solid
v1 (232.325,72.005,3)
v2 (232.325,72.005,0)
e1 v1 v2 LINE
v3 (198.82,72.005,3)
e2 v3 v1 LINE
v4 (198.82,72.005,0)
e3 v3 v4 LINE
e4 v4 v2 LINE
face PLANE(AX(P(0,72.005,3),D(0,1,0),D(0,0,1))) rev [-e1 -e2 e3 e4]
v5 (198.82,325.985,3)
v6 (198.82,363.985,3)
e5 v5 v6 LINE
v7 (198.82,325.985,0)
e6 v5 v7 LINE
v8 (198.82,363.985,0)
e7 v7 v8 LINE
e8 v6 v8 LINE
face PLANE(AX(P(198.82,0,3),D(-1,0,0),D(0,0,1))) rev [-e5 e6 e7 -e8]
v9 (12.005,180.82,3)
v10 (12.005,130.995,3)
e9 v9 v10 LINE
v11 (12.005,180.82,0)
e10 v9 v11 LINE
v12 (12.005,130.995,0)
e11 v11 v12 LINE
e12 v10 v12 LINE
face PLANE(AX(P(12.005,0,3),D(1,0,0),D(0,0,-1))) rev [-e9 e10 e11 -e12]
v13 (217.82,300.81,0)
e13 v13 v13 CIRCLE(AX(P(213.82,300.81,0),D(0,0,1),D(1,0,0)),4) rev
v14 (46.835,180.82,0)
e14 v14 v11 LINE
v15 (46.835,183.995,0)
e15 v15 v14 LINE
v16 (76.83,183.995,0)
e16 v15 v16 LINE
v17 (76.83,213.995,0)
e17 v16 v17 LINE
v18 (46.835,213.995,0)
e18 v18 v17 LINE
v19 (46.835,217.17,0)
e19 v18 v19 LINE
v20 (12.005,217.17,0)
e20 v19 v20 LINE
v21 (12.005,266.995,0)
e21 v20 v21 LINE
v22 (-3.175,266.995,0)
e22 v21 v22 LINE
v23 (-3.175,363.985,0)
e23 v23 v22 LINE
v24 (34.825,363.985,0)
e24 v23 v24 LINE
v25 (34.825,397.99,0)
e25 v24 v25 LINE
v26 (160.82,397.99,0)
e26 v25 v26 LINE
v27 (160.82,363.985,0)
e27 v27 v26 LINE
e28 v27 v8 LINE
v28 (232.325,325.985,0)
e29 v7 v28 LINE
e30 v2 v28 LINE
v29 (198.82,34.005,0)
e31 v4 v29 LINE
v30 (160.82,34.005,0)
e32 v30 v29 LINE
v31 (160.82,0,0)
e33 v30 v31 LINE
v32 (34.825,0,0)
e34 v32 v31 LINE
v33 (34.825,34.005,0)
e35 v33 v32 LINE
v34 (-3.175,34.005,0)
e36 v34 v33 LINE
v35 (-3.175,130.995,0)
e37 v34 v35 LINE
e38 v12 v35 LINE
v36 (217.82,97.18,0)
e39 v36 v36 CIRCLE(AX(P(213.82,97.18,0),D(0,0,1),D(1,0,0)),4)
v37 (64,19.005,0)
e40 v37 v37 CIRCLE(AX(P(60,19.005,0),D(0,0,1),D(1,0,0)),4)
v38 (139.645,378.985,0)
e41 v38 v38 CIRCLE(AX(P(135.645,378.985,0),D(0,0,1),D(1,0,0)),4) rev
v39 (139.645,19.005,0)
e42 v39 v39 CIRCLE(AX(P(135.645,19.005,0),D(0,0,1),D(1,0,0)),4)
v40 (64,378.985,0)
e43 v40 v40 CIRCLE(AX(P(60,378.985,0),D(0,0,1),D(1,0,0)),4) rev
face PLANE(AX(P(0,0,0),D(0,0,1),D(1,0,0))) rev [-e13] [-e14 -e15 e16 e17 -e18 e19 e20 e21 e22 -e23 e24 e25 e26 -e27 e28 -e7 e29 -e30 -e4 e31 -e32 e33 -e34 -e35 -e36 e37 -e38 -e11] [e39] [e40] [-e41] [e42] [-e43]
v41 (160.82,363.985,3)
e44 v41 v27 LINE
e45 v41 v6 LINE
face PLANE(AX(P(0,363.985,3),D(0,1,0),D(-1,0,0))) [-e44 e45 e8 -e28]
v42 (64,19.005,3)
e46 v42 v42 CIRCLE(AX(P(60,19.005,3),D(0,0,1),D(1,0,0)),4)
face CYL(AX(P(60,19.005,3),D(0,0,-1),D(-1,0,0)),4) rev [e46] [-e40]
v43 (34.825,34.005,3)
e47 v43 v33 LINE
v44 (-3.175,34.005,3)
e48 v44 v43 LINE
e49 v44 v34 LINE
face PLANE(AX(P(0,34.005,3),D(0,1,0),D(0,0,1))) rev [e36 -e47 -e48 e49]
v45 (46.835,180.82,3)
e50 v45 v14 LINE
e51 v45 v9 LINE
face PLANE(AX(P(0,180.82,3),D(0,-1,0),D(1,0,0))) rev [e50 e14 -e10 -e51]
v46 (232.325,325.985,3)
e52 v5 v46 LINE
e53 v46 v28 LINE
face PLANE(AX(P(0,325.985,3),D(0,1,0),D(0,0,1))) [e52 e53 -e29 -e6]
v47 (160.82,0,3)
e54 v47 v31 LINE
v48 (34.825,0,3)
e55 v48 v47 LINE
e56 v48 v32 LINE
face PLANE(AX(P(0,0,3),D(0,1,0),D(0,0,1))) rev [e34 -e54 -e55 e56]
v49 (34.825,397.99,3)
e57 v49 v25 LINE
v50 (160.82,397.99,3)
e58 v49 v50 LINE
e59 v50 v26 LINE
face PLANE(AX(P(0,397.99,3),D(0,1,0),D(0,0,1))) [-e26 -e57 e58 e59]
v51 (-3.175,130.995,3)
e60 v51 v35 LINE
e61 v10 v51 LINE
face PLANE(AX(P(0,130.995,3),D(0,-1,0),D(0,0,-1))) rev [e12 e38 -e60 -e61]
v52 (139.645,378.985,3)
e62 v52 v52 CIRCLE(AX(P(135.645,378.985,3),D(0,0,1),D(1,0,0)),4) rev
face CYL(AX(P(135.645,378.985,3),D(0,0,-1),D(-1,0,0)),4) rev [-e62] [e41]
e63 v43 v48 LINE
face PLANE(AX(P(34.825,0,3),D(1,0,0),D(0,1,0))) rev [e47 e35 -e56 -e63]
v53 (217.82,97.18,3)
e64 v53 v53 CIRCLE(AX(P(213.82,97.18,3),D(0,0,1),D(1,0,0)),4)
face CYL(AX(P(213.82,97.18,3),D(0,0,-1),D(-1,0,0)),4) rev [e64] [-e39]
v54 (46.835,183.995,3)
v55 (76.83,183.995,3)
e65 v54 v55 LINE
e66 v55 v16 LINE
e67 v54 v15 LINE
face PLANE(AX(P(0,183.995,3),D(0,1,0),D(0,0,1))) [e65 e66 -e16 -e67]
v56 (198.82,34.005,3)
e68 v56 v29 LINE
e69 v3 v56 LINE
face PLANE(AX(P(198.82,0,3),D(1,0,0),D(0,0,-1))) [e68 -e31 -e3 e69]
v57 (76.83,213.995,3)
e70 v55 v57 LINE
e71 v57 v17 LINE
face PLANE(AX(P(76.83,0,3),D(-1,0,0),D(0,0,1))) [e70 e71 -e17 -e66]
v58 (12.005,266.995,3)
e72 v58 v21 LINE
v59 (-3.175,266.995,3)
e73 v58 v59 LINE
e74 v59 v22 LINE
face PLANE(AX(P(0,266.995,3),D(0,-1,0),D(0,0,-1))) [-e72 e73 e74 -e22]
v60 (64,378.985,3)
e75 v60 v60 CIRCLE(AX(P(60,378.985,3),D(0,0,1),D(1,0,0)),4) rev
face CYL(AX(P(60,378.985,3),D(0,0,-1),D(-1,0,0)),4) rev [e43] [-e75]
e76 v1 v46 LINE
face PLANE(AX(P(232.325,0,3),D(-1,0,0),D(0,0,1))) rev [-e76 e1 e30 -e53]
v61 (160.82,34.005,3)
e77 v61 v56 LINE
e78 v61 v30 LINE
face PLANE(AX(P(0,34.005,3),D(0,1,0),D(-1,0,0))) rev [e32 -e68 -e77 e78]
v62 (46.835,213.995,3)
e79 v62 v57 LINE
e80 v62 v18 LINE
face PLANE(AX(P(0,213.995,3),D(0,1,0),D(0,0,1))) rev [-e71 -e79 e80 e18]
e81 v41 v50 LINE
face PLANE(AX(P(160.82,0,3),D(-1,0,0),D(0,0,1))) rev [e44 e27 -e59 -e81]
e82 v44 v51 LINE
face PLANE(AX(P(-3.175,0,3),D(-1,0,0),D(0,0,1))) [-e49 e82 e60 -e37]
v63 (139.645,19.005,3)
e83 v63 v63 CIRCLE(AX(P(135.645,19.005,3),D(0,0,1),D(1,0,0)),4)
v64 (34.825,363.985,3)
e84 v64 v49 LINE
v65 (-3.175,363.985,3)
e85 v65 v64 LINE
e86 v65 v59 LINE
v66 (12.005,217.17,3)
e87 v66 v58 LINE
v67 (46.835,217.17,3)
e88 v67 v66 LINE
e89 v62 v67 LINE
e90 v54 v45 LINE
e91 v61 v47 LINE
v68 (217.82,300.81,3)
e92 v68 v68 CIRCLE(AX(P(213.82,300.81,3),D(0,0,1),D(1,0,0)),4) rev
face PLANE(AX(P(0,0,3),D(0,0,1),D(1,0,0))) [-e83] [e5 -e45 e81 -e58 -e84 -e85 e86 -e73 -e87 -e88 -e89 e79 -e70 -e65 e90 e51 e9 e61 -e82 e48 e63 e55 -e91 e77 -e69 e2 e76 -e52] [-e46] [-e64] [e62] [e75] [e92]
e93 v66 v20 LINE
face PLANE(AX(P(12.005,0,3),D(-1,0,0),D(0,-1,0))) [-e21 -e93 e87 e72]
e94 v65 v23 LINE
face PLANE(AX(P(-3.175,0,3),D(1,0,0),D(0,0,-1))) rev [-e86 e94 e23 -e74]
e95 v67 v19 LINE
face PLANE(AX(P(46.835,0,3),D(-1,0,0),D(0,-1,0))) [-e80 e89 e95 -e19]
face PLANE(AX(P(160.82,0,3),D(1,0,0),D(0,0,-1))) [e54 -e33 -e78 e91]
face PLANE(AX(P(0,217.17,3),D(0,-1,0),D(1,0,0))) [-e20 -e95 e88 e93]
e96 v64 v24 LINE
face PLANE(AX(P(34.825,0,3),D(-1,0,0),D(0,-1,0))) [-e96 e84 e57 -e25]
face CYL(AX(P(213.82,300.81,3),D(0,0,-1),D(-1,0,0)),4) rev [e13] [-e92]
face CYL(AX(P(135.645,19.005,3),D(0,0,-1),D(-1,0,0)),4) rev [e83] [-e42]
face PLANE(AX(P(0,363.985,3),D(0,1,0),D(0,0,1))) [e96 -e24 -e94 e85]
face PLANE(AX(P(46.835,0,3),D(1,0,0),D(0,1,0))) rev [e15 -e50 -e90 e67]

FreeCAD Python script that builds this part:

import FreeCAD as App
import Part
import Sketcher

doc = App.newDocument("Part")
body = doc.addObject("PartDesign::Body", "Body")

# Sketch on XY plane
sketch1 = body.newObject("Sketcher::SketchObject", "Sketch")
sketch1.AttachmentSupport = (doc.getObject("XY_Plane"), [""])
sketch1.MapMode = "FlatFace"
sketch1.addGeometry([
    Part.LineSegment(App.Vector(160.8, 34, 0), App.Vector(198.8, 34, 0)),  # 0
    Part.LineSegment(App.Vector(198.8, 34, 0), App.Vector(198.8, 72, 0)),  # 1
    Part.LineSegment(App.Vector(198.8, 72, 0), App.Vector(232.3, 72, 0)),  # 2
    Part.LineSegment(App.Vector(232.3, 72, 0), App.Vector(232.3, 326, 0)),  # 3
    Part.LineSegment(App.Vector(232.3, 326, 0), App.Vector(198.8, 326, 0)),  # 4
    Part.LineSegment(App.Vector(198.8, 326, 0), App.Vector(198.8, 364, 0)),  # 5
    Part.LineSegment(App.Vector(198.8, 364, 0), App.Vector(160.8, 364, 0)),  # 6
    Part.LineSegment(App.Vector(160.8, 364, 0), App.Vector(160.8, 398, 0)),  # 7
    Part.LineSegment(App.Vector(160.8, 398, 0), App.Vector(34.8, 398, 0)),  # 8
    Part.LineSegment(App.Vector(34.8, 398, 0), App.Vector(34.8, 364, 0)),  # 9
    Part.LineSegment(App.Vector(34.8, 364, 0), App.Vector(-3.2, 364, 0)),  # 10
    Part.LineSegment(App.Vector(-3.2, 364, 0), App.Vector(-3.2, 267, 0)),  # 11
    Part.LineSegment(App.Vector(-3.2, 267, 0), App.Vector(12, 267, 0)),  # 12
    Part.LineSegment(App.Vector(12, 267, 0), App.Vector(12, 217.2, 0)),  # 13
    Part.LineSegment(App.Vector(12, 217.2, 0), App.Vector(46.8, 217.2, 0)),  # 14
    Part.LineSegment(App.Vector(46.8, 217.2, 0), App.Vector(46.8, 214, 0)),  # 15
    Part.LineSegment(App.Vector(46.8, 214, 0), App.Vector(76.8, 214, 0)),  # 16
    Part.LineSegment(App.Vector(76.8, 214, 0), App.Vector(76.8, 184, 0)),  # 17
    Part.LineSegment(App.Vector(76.8, 184, 0), App.Vector(46.8, 184, 0)),  # 18
    Part.LineSegment(App.Vector(46.8, 184, 0), App.Vector(46.8, 180.8, 0)),  # 19
    Part.LineSegment(App.Vector(46.8, 180.8, 0), App.Vector(12, 180.8, 0)),  # 20
    Part.LineSegment(App.Vector(12, 180.8, 0), App.Vector(12, 131, 0)),  # 21
    Part.LineSegment(App.Vector(12, 131, 0), App.Vector(-3.2, 131, 0)),  # 22
    Part.LineSegment(App.Vector(-3.2, 131, 0), App.Vector(-3.2, 34, 0)),  # 23
    Part.LineSegment(App.Vector(-3.2, 34, 0), App.Vector(34.8, 34, 0)),  # 24
    Part.LineSegment(App.Vector(34.8, 34, 0), App.Vector(34.8, 0, 0)),  # 25
    Part.LineSegment(App.Vector(34.8, 0, 0), App.Vector(160.8, 0, 0)),  # 26
    Part.LineSegment(App.Vector(160.8, 0, 0), App.Vector(160.8, 34, 0)),  # 27
    Part.Circle(App.Vector(60, 19, 0), App.Vector(0, 0, 1), 4),  # 28
    Part.Circle(App.Vector(135.6, 19, 0), App.Vector(0, 0, 1), 4),  # 29
    Part.Circle(App.Vector(213.8, 97.2, 0), App.Vector(0, 0, 1), 4),  # 30
    Part.Circle(App.Vector(60, 379, 0), App.Vector(0, 0, 1), 4),  # 31
    Part.Circle(App.Vector(135.6, 379, 0), App.Vector(0, 0, 1), 4),  # 32
    Part.Circle(App.Vector(213.8, 300.8, 0), App.Vector(0, 0, 1), 4),  # 33
], False)
sketch1.addConstraint([
    Sketcher.Constraint("Coincident", 0, 2, 1, 1),
    Sketcher.Constraint("Coincident", 1, 2, 2, 1),
    Sketcher.Constraint("Coincident", 2, 2, 3, 1),
    Sketcher.Constraint("Coincident", 3, 2, 4, 1),
    Sketcher.Constraint("Coincident", 4, 2, 5, 1),
    Sketcher.Constraint("Coincident", 5, 2, 6, 1),
    Sketcher.Constraint("Coincident", 6, 2, 7, 1),
    Sketcher.Constraint("Coincident", 7, 2, 8, 1),
    Sketcher.Constraint("Coincident", 8, 2, 9, 1),
    Sketcher.Constraint("Coincident", 9, 2, 10, 1),
    Sketcher.Constraint("Coincident", 10, 2, 11, 1),
    Sketcher.Constraint("Coincident", 11, 2, 12, 1),
    Sketcher.Constraint("Coincident", 12, 2, 13, 1),
    Sketcher.Constraint("Coincident", 13, 2, 14, 1),
    Sketcher.Constraint("Coincident", 14, 2, 15, 1),
    Sketcher.Constraint("Coincident", 15, 2, 16, 1),
    Sketcher.Constraint("Coincident", 16, 2, 17, 1),
    Sketcher.Constraint("Coincident", 17, 2, 18, 1),
    Sketcher.Constraint("Coincident", 18, 2, 19, 1),
    Sketcher.Constraint("Coincident", 19, 2, 20, 1),
    Sketcher.Constraint("Coincident", 20, 2, 21, 1),
    Sketcher.Constraint("Coincident", 21, 2, 22, 1),
    Sketcher.Constraint("Coincident", 22, 2, 23, 1),
    Sketcher.Constraint("Coincident", 23, 2, 24, 1),
    Sketcher.Constraint("Coincident", 24, 2, 25, 1),
    Sketcher.Constraint("Coincident", 25, 2, 26, 1),
    Sketcher.Constraint("Coincident", 26, 2, 27, 1),
    Sketcher.Constraint("Coincident", 27, 2, 0, 1),
    Sketcher.Constraint("Horizontal", 0),
    Sketcher.Constraint("Vertical", 1),
    Sketcher.Constraint("Horizontal", 2),
    Sketcher.Constraint("Vertical", 3),
    Sketcher.Constraint("Horizontal", 4),
    Sketcher.Constraint("Vertical", 5),
    Sketcher.Constraint("Horizontal", 6),
    Sketcher.Constraint("Vertical", 7),
    Sketcher.Constraint("Horizontal", 8),
    Sketcher.Constraint("Vertical", 9),
    Sketcher.Constraint("Horizontal", 10),
    Sketcher.Constraint("Vertical", 11),
    Sketcher.Constraint("Horizontal", 12),
    Sketcher.Constraint("Vertical", 13),
    Sketcher.Constraint("Horizontal", 14),
    Sketcher.Constraint("Vertical", 15),
    Sketcher.Constraint("Horizontal", 16),
    Sketcher.Constraint("Vertical", 17),
    Sketcher.Constraint("Horizontal", 18),
    Sketcher.Constraint("Vertical", 19),
    Sketcher.Constraint("Horizontal", 20),
    Sketcher.Constraint("Vertical", 21),
    Sketcher.Constraint("Horizontal", 22),
    Sketcher.Constraint("Vertical", 23),
    Sketcher.Constraint("Horizontal", 24),
    Sketcher.Constraint("Vertical", 25),
    Sketcher.Constraint("Horizontal", 26),
    Sketcher.Constraint("Vertical", 27),
    Sketcher.Constraint("Equal", 28, 29),
    Sketcher.Constraint("Equal", 29, 30),
    Sketcher.Constraint("Equal", 30, 31),
    Sketcher.Constraint("Equal", 31, 32),
    Sketcher.Constraint("Equal", 32, 33),
    Sketcher.Constraint("PointOnObject", 25, 2, -1),
    Sketcher.Constraint("Horizontal", 28, 3, 29, 3),
    Sketcher.Constraint("Horizontal", 31, 3, 32, 3),
    Sketcher.Constraint("Horizontal", 6, 2, 9, 2),
    Sketcher.Constraint("Horizontal", 0, 2, 23, 2),
    Sketcher.Constraint("Vertical", 28, 3, 31, 3),
    Sketcher.Constraint("Vertical", 29, 3, 32, 3),
    Sketcher.Constraint("Vertical", 30, 3, 33, 3),
    Sketcher.Constraint("Vertical", 1, 2, 4, 2),
    Sketcher.Constraint("Vertical", 15, 2, 18, 2),
    Sketcher.Constraint("Vertical", 13, 2, 20, 2),
    Sketcher.Constraint("Vertical", 11, 2, 22, 2),
    Sketcher.Constraint("Vertical", 9, 2, 24, 2),
    Sketcher.Constraint("Vertical", 7, 2, 26, 2),
    Sketcher.Constraint("Equal", 6, 10),
    Sketcher.Constraint("Equal", 24, 1),
    Sketcher.Constraint("Equal", 1, 5),
    Sketcher.Constraint("Equal", 15, 19),
    Sketcher.Constraint("Equal", 13, 21),
    Sketcher.Constraint("Equal", 11, 23),
    Sketcher.Constraint("Equal", 9, 25),
    Sketcher.Constraint("Diameter", 28, 8.0),
    Sketcher.Constraint("DistanceX", 0, 1, 0, 2, 38.0),
    Sketcher.Constraint("DistanceY", 17, 2, 17, 1, 30.0),
    Sketcher.Constraint("DistanceX", -1, 1, 28, 3, 60.0),
    Sketcher.Constraint("DistanceY", 29, 3, 0, 2, 15.0),
    Sketcher.Constraint("DistanceX", 0, 2, 30, 3, 15.0),
    Sketcher.Constraint("DistanceY", 3, 2, 32, 3, 53.0),
    Sketcher.Constraint("DistanceY", 15, 2, 12, 2, 53.0),
    Sketcher.Constraint("DistanceX", 12, 1, 12, 2, 15.18),
    Sketcher.Constraint("DistanceX", 14, 1, 14, 2, 34.83),
    Sketcher.Constraint("DistanceY", 3, 1, 3, 2, 253.98),
    Sketcher.Constraint("DistanceX", 2, 1, 2, 2, 33.505),
    Sketcher.Constraint("DistanceX", 8, 2, 8, 1, 125.995),
    Sketcher.Constraint("DistanceX", 16, 1, 16, 2, 29.995),
    Sketcher.Constraint("DistanceY", 7, 1, 7, 2, 34.005),
    Sketcher.Constraint("DistanceY", 13, 2, 13, 1, 49.825),
    Sketcher.Constraint("DistanceX", -1, 1, 30, 3, 213.82),
    Sketcher.Constraint("DistanceY", -1, 1, 30, 3, 97.18),
    Sketcher.Constraint("DistanceY", -1, 1, 33, 3, 300.81),
    Sketcher.Constraint("DistanceX", 29, 3, 2, 2, 96.68),
])
pad1 = body.newObject("PartDesign::Pad", "Pad")
pad1.Profile = sketch1
pad1.Length = 3

doc.recompute()
